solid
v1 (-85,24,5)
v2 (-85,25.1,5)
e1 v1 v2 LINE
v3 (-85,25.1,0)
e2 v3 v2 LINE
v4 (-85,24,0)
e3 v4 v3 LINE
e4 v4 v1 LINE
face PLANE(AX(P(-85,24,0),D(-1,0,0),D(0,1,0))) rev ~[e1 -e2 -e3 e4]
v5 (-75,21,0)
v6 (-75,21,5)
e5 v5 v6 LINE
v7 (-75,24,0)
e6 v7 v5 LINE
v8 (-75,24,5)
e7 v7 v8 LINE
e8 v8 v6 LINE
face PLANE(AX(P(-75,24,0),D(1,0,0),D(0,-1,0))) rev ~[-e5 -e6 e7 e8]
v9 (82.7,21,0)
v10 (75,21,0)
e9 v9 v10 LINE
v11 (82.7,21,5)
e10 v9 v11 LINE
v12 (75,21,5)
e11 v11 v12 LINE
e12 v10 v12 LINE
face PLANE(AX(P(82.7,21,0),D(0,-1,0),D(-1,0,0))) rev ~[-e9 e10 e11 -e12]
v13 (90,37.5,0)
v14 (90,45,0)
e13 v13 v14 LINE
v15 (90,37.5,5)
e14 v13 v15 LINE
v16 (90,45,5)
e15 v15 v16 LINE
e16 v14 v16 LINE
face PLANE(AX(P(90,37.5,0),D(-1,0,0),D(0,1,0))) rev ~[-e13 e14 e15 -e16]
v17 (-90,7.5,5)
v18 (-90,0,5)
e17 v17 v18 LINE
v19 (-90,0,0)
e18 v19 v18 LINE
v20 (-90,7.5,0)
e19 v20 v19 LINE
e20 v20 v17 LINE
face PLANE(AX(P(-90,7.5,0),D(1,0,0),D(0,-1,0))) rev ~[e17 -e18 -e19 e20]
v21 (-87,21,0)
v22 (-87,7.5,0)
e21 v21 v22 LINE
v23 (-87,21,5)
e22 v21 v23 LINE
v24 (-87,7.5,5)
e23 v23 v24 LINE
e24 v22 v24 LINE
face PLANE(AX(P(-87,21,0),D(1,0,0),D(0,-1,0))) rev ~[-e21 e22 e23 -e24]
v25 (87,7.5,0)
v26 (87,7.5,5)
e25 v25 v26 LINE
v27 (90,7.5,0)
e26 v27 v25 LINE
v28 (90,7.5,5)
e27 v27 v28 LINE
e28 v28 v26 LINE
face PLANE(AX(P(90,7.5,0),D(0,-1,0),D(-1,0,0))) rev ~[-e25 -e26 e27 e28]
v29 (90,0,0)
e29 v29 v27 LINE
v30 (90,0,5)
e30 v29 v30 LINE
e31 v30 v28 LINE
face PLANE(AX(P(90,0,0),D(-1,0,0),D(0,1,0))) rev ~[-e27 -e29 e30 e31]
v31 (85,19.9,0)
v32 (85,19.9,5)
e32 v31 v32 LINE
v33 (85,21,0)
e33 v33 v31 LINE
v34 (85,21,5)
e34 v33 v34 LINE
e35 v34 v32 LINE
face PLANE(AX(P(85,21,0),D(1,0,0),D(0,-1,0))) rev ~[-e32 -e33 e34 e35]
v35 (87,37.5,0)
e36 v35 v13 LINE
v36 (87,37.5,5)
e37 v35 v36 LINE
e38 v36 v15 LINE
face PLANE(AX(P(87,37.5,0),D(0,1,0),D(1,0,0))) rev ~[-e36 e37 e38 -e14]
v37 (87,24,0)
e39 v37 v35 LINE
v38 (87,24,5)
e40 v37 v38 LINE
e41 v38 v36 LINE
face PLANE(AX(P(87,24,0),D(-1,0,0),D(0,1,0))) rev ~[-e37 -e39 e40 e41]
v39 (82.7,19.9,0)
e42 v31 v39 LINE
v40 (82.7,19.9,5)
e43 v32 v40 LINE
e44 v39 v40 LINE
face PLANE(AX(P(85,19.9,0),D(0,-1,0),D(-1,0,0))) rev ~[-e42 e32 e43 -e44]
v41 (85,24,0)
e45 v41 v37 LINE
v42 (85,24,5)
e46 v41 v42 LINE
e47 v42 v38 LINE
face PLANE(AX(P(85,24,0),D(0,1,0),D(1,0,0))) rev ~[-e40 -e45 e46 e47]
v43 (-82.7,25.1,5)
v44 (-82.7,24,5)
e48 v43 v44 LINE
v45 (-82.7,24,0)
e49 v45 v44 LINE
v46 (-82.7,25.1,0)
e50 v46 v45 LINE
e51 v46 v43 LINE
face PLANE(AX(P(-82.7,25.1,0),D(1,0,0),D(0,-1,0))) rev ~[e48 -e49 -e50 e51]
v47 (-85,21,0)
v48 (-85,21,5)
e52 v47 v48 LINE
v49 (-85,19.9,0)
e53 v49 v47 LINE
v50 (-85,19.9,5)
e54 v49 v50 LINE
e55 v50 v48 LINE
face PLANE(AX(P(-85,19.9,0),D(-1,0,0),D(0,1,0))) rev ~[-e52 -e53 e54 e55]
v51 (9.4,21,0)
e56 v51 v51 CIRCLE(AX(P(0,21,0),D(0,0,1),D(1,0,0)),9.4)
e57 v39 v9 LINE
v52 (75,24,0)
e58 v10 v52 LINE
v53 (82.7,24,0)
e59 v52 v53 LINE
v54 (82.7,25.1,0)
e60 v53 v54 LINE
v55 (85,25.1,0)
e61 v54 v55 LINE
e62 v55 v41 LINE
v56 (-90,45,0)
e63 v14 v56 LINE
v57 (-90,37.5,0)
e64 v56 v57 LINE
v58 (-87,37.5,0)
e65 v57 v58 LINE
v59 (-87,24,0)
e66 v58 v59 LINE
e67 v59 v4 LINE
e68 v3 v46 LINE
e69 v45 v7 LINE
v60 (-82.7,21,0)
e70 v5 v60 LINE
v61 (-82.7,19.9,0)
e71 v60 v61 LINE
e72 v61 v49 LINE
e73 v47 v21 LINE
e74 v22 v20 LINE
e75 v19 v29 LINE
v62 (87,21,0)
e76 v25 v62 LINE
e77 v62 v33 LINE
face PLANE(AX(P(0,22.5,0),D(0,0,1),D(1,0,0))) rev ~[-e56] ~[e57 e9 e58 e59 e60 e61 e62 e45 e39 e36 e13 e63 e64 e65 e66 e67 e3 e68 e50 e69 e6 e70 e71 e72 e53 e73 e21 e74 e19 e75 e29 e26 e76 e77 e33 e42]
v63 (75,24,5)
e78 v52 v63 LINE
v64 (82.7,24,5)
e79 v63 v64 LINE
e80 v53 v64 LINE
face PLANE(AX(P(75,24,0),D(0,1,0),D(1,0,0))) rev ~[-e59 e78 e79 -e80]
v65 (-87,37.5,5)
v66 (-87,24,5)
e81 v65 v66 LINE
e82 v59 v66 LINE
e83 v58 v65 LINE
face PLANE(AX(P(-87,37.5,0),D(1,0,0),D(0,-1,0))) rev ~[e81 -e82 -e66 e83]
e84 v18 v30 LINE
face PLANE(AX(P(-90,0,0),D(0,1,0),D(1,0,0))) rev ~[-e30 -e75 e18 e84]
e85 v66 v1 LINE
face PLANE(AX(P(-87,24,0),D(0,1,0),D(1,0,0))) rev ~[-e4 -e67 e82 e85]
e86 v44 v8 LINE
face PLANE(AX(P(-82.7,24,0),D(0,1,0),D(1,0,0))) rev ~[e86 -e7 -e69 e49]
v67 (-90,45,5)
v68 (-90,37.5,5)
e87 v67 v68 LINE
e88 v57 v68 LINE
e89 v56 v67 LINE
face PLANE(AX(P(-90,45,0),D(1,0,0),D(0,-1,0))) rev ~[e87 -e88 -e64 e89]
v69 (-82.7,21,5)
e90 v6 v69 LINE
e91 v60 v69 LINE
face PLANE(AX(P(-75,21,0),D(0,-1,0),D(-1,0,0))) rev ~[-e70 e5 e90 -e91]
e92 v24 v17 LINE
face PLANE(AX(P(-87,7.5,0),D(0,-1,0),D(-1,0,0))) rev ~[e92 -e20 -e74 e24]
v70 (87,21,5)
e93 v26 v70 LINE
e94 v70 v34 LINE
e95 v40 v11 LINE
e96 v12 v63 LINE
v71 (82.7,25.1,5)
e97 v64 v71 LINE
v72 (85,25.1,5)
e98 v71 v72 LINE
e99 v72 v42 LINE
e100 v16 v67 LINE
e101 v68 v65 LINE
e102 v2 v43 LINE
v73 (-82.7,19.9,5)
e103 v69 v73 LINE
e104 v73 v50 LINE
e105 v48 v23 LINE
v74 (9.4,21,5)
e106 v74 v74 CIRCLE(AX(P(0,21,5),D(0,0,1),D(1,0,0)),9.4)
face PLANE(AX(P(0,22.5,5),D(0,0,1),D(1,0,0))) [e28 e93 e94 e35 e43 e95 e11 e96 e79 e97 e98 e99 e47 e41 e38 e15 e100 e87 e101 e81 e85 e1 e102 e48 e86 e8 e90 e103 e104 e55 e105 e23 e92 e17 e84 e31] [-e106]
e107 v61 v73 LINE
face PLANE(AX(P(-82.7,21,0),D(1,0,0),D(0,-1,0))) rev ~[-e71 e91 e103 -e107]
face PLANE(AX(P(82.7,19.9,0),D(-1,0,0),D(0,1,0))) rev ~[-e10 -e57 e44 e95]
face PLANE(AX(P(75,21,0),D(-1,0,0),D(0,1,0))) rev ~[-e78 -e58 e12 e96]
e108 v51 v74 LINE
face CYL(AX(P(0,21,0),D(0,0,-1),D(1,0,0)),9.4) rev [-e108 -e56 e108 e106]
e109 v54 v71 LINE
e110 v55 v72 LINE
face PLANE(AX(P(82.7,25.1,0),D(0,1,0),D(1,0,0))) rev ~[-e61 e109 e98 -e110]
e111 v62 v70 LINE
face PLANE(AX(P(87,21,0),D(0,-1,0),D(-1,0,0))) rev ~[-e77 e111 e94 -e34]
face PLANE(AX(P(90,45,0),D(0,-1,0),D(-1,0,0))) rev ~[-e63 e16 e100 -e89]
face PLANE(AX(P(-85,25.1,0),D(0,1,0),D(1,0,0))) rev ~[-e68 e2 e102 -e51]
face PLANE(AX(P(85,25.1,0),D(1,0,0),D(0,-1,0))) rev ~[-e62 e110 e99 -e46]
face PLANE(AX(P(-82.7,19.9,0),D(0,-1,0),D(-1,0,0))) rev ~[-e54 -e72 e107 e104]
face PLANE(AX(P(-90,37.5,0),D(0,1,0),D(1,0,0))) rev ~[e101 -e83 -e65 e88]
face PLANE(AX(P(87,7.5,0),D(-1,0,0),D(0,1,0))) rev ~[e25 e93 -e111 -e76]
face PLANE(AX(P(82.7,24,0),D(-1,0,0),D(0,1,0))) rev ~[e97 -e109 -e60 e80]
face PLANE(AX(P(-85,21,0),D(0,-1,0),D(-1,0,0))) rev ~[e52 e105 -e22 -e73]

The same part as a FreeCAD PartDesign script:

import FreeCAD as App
import Part
import Sketcher
from FreeCAD import Vector
Q = App.Units.Quantity


def add_polygon(sketch, points):
    """Adds a closed chain of lines whose ends are joined by coincident constraints."""
    first, n = sketch.GeometryCount, len(points)
    for a, b in zip(points, points[1:] + points[:1]):
        sketch.addGeometry(Part.LineSegment(App.Vector(*a, 0), App.Vector(*b, 0)), False)
    for i in range(n):
        sketch.addConstraint(Sketcher.Constraint("Coincident", first + i, 2, first + (i + 1) % n, 1))

doc = App.newDocument("Part")
params = doc.addObject("Spreadsheet::Sheet", "Params")
for row, (alias, value) in enumerate([
    ("sketch1_diameter", "18.8 mm"),
    ("sketch1_width", "180 mm"),
    ("sketch1_width2", "3 mm"),
    ("sketch1_width3", "2 mm"),
    ("sketch1_width4", "2.3 mm"),
    ("pad1_length", "5 mm"),
], start=1):
    params.set(f"A{row}", alias)
    params.set(f"B{row}", "=" + value)
    params.setAlias(f"B{row}", alias)

body = doc.addObject("PartDesign::Body", "Body")

# Sketch on XY plane
sketch1 = doc.addObject("Sketcher::SketchObject", "Sketch")
body.addObject(sketch1)
sketch1.AttachmentSupport = (doc.XY_Plane, [""])
sketch1.MapMode = "FlatFace"
add_polygon(sketch1, [(90, 45), (-90, 45), (-90, 37.5), (-87, 37.5), (-87, 24), (-85, 24), (-85, 25.1), (-82.7, 25.1), (-82.7, 24), (-75, 24), (-75, 21), (-82.7, 21), (-82.7, 19.9), (-85, 19.9), (-85, 21), (-87, 21), (-87, 7.5), (-90, 7.5), (-90, 0), (90, 0), (90, 7.5), (87, 7.5), (87, 21), (85, 21), (85, 19.9), (82.7, 19.9), (82.7, 21), (75, 21), (75, 24), (82.7, 24), (82.7, 25.1), (85, 25.1), (85, 24), (87, 24), (87, 37.5), (90, 37.5)])  # lines 0-35
sketch1.addGeometry(Part.Circle(Vector(0, 21, 0), Vector(0, 0, 1), 9.4), False)  # 36
sketch1.addConstraint(Sketcher.Constraint("Horizontal", 0))
sketch1.addConstraint(Sketcher.Constraint("Vertical", 1))
sketch1.addConstraint(Sketcher.Constraint("Horizontal", 2))
sketch1.addConstraint(Sketcher.Constraint("Vertical", 3))
sketch1.addConstraint(Sketcher.Constraint("Horizontal", 4))
sketch1.addConstraint(Sketcher.Constraint("Vertical", 5))
sketch1.addConstraint(Sketcher.Constraint("Horizontal", 6))
sketch1.addConstraint(Sketcher.Constraint("Vertical", 7))
sketch1.addConstraint(Sketcher.Constraint("Horizontal", 8))
sketch1.addConstraint(Sketcher.Constraint("Vertical", 9))
sketch1.addConstraint(Sketcher.Constraint("Horizontal", 10))
sketch1.addConstraint(Sketcher.Constraint("Vertical", 11))
sketch1.addConstraint(Sketcher.Constraint("Horizontal", 12))
sketch1.addConstraint(Sketcher.Constraint("Vertical", 13))
sketch1.addConstraint(Sketcher.Constraint("Horizontal", 14))
sketch1.addConstraint(Sketcher.Constraint("Vertical", 15))
sketch1.addConstraint(Sketcher.Constraint("Horizontal", 16))
sketch1.addConstraint(Sketcher.Constraint("Vertical", 17))
sketch1.addConstraint(Sketcher.Constraint("Horizontal", 18))
sketch1.addConstraint(Sketcher.Constraint("Vertical", 19))
sketch1.addConstraint(Sketcher.Constraint("Horizontal", 20))
sketch1.addConstraint(Sketcher.Constraint("Vertical", 21))
sketch1.addConstraint(Sketcher.Constraint("Horizontal", 22))
sketch1.addConstraint(Sketcher.Constraint("Vertical", 23))
sketch1.addConstraint(Sketcher.Constraint("Horizontal", 24))
sketch1.addConstraint(Sketcher.Constraint("Vertical", 25))
sketch1.addConstraint(Sketcher.Constraint("Horizontal", 26))
sketch1.addConstraint(Sketcher.Constraint("Vertical", 27))
sketch1.addConstraint(Sketcher.Constraint("Horizontal", 28))
sketch1.addConstraint(Sketcher.Constraint("Vertical", 29))
sketch1.addConstraint(Sketcher.Constraint("Horizontal", 30))
sketch1.addConstraint(Sketcher.Constraint("Vertical", 31))
sketch1.addConstraint(Sketcher.Constraint("Horizontal", 32))
sketch1.addConstraint(Sketcher.Constraint("Vertical", 33))
sketch1.addConstraint(Sketcher.Constraint("Horizontal", 34))
sketch1.addConstraint(Sketcher.Constraint("Vertical", 35))
sketch1.addConstraint(Sketcher.Constraint("Symmetric", 17, 2, 18, 2, -1, 1))
sketch1.addConstraint(Sketcher.Constraint("Symmetric", 15, 2, 20, 2, -2))
sketch1.addConstraint(Sketcher.Constraint("Symmetric", 13, 2, 22, 2, -2))
sketch1.addConstraint(Sketcher.Constraint("Symmetric", 11, 2, 24, 2, -2))
sketch1.addConstraint(Sketcher.Constraint("Symmetric", 9, 2, 26, 2, -2))
sketch1.addConstraint(Sketcher.Constraint("Symmetric", 7, 2, 28, 2, -2))
sketch1.addConstraint(Sketcher.Constraint("Symmetric", 5, 2, 30, 2, -2))
sketch1.addConstraint(Sketcher.Constraint("Symmetric", 3, 2, 32, 2, -2))
sketch1.addConstraint(Sketcher.Constraint("Symmetric", 1, 2, 34, 2, -2))
sketch1.addConstraint(Sketcher.Constraint("PointOnObject", 36, 3, -2))
sketch1.addConstraint(Sketcher.Constraint("Horizontal", 4, 2, 7, 2))
sketch1.addConstraint(Sketcher.Constraint("Horizontal", 36, 3, 9, 2))
sketch1.addConstraint(Sketcher.Constraint("Horizontal", 10, 2, 13, 2))
sketch1.addConstraint(Sketcher.Constraint("Vertical", 7, 2, 10, 2))
sketch1.addConstraint(Sketcher.Constraint("Vertical", 5, 2, 12, 2))
sketch1.addConstraint(Sketcher.Constraint("Vertical", 3, 2, 14, 2))
sketch1.addConstraint(Sketcher.Constraint("Vertical", 1, 2, 16, 2))
sketch1.addConstraint(Sketcher.Constraint("Equal", 34, 9))
sketch1.addConstraint(Sketcher.Constraint("Equal", 7, 11))
sketch1.addConstraint(Sketcher.Constraint("Equal", 3, 15))
sketch1.addConstraint(Sketcher.Constraint("Equal", 1, 17))
sketch1.addConstraint(Sketcher.Constraint("Diameter", 36, Q("18.8 mm")))
sketch1.addConstraint(Sketcher.Constraint("DistanceX", 0, 2, 0, 1, Q("180 mm")))
sketch1.addConstraint(Sketcher.Constraint("DistanceX", 2, 1, 2, 2, Q("3 mm")))
sketch1.addConstraint(Sketcher.Constraint("DistanceX", 4, 1, 4, 2, Q("2 mm")))
sketch1.addConstraint(Sketcher.Constraint("DistanceX", 6, 1, 6, 2, Q("2.3 mm")))
sketch1.addConstraint(Sketcher.Constraint("DistanceX", 8, 1, 8, 2, Q("7.7 mm")))
sketch1.addConstraint(Sketcher.Constraint("DistanceY", 1, 2, 1, 1, Q("7.5 mm")))
sketch1.addConstraint(Sketcher.Constraint("DistanceY", 3, 2, 3, 1, Q("13.5 mm")))
sketch1.addConstraint(Sketcher.Constraint("DistanceY", 5, 1, 5, 2, Q("1.1 mm")))
sketch1.setExpression("Constraints[93]", "Params.sketch1_diameter")
sketch1.setExpression("Constraints[94]", "Params.sketch1_width")
sketch1.setExpression("Constraints[95]", "Params.sketch1_width2")
sketch1.setExpression("Constraints[96]", "Params.sketch1_width3")
sketch1.setExpression("Constraints[97]", "Params.sketch1_width4")
pad1 = doc.addObject("PartDesign::Pad", "Pad")
body.addObject(pad1)
pad1.Profile = sketch1
pad1.setExpression("Length", "Params.pad1_length")

doc.recompute()
